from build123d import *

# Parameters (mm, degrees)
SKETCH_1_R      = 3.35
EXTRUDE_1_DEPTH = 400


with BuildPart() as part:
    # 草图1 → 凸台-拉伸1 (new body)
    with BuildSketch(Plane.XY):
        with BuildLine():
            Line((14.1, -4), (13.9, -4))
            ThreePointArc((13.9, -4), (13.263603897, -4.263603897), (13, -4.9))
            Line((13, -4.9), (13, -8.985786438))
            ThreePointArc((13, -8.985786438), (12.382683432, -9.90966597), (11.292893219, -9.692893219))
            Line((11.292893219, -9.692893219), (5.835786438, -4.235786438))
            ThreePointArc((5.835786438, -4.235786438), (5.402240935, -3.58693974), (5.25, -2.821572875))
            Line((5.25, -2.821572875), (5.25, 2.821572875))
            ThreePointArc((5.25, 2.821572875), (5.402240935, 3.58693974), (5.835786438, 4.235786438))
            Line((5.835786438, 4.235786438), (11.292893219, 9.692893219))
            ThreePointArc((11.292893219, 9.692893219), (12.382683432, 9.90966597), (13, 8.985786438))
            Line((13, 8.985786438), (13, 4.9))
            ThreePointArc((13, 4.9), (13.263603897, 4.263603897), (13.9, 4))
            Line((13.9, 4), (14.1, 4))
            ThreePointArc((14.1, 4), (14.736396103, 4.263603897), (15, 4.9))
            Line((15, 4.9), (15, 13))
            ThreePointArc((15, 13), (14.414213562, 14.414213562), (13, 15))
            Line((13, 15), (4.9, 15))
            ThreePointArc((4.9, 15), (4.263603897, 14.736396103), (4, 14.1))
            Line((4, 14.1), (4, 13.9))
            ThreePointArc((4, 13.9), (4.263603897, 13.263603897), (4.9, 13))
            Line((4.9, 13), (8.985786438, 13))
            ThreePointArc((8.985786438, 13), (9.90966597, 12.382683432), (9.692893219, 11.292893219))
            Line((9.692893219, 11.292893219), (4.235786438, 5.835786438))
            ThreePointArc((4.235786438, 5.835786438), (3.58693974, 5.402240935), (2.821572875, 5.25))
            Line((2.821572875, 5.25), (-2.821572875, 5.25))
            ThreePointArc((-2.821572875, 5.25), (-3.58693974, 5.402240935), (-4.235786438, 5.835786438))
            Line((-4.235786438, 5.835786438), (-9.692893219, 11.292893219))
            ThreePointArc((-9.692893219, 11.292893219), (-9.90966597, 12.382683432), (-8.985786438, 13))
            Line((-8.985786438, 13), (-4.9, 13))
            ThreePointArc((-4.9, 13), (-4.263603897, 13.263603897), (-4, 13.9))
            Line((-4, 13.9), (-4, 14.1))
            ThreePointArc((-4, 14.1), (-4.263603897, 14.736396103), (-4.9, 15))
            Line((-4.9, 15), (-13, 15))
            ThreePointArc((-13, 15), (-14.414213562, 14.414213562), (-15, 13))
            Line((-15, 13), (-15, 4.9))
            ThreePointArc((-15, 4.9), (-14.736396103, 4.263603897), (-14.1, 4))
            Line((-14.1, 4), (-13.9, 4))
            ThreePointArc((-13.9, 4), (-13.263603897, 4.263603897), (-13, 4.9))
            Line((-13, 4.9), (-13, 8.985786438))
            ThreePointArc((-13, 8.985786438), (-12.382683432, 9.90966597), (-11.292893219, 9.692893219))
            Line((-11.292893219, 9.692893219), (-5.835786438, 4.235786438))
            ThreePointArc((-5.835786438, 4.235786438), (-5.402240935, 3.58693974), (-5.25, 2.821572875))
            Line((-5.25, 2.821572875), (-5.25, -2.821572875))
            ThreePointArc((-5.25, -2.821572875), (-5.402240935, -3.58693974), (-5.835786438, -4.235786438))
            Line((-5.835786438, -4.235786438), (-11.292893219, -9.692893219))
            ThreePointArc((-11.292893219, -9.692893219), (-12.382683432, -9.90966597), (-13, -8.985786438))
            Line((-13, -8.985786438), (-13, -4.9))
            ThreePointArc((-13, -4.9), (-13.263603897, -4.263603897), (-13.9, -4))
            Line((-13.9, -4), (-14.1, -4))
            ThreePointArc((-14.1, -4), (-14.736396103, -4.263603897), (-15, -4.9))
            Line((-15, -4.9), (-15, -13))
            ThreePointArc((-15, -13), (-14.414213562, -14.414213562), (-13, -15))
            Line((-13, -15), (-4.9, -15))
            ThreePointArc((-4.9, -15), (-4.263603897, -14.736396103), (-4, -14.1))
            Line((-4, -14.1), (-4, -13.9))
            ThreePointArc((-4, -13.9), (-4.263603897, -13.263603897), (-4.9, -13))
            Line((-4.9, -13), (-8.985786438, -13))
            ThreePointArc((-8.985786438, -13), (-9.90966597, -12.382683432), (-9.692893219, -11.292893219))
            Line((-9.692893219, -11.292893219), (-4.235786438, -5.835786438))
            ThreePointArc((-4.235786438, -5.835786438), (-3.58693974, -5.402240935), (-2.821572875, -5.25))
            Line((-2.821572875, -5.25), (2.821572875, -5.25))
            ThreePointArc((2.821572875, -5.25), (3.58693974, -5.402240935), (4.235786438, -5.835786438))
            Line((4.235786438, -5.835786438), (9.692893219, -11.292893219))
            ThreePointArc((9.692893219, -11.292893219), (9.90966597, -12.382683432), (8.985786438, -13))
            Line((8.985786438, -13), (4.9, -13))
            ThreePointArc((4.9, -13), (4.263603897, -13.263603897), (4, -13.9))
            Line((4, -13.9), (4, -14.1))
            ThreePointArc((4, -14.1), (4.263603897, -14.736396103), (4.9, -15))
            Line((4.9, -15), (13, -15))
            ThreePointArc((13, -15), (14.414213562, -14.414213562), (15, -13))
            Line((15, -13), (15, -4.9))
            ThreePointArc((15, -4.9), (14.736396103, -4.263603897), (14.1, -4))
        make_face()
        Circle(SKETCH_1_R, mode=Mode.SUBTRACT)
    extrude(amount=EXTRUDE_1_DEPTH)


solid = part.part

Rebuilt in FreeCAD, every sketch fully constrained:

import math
import FreeCAD as App
import Part
import Sketcher

V = App.Vector
Q = App.Units.Quantity

doc = App.newDocument("Part")
body = doc.addObject("PartDesign::Body", "Body")

sketch1 = doc.addObject("Sketcher::SketchObject", "Sketch")
body.addObject(sketch1)
sketch1.AttachmentSupport = (doc.XY_Plane, [""])
sketch1.MapMode = "FlatFace"
sketch1.addGeometry([
    Part.LineSegment(V(14.1, -4, 0), V(13.9, -4, 0)),
    Part.ArcOfCircle(Part.Circle(V(13.9, -4.9, 0), V(0, 0, 1), 0.9), math.radians(90), math.radians(180)),
    Part.LineSegment(V(13, -4.9, 0), V(13, -8.99, 0)),
    Part.ArcOfCircle(Part.Circle(V(12, -8.99, 0), V(0, 0, 1), 1), math.radians(-135), math.radians(0)),
    Part.LineSegment(V(11.29, -9.69, 0), V(5.84, -4.24, 0)),
    Part.ArcOfCircle(Part.Circle(V(7.25, -2.82, 0), V(0, 0, 1), 2), math.radians(180), math.radians(225)),
    Part.LineSegment(V(5.25, -2.82, 0), V(5.25, 2.82, 0)),
    Part.ArcOfCircle(Part.Circle(V(7.25, 2.82, 0), V(0, 0, 1), 2), math.radians(135), math.radians(180)),
    Part.LineSegment(V(5.84, 4.24, 0), V(11.29, 9.69, 0)),
    Part.ArcOfCircle(Part.Circle(V(12, 8.99, 0), V(0, 0, 1), 1), math.radians(0), math.radians(135)),
    Part.LineSegment(V(13, 8.99, 0), V(13, 4.9, 0)),
    Part.ArcOfCircle(Part.Circle(V(13.9, 4.9, 0), V(0, 0, 1), 0.9), math.radians(180), math.radians(270)),
    Part.LineSegment(V(13.9, 4, 0), V(14.1, 4, 0)),
    Part.ArcOfCircle(Part.Circle(V(14.1, 4.9, 0), V(0, 0, 1), 0.9), math.radians(-90), math.radians(0)),
    Part.LineSegment(V(15, 4.9, 0), V(15, 13, 0)),
    Part.ArcOfCircle(Part.Circle(V(13, 13, 0), V(0, 0, 1), 2), math.radians(0), math.radians(90)),
    Part.LineSegment(V(13, 15, 0), V(4.9, 15, 0)),
    Part.ArcOfCircle(Part.Circle(V(4.9, 14.1, 0), V(0, 0, 1), 0.9), math.radians(90), math.radians(180)),
    Part.LineSegment(V(4, 14.1, 0), V(4, 13.9, 0)),
    Part.ArcOfCircle(Part.Circle(V(4.9, 13.9, 0), V(0, 0, 1), 0.9), math.radians(180), math.radians(270)),
    Part.LineSegment(V(4.9, 13, 0), V(8.99, 13, 0)),
    Part.ArcOfCircle(Part.Circle(V(8.99, 12, 0), V(0, 0, 1), 1), math.radians(-45), math.radians(90)),
    Part.LineSegment(V(9.69, 11.29, 0), V(4.24, 5.84, 0)),
    Part.ArcOfCircle(Part.Circle(V(2.82, 7.25, 0), V(0, 0, 1), 2), math.radians(-90), math.radians(-45)),
    Part.LineSegment(V(2.82, 5.25, 0), V(-2.82, 5.25, 0)),
    Part.ArcOfCircle(Part.Circle(V(-2.82, 7.25, 0), V(0, 0, 1), 2), math.radians(-135), math.radians(-90)),
    Part.LineSegment(V(-4.24, 5.84, 0), V(-9.69, 11.29, 0)),
    Part.ArcOfCircle(Part.Circle(V(-8.99, 12, 0), V(0, 0, 1), 1), math.radians(90), math.radians(225)),
    Part.LineSegment(V(-8.99, 13, 0), V(-4.9, 13, 0)),
    Part.ArcOfCircle(Part.Circle(V(-4.9, 13.9, 0), V(0, 0, 1), 0.9), math.radians(-90), math.radians(0)),
    Part.LineSegment(V(-4, 13.9, 0), V(-4, 14.1, 0)),
    Part.ArcOfCircle(Part.Circle(V(-4.9, 14.1, 0), V(0, 0, 1), 0.9), math.radians(0), math.radians(90)),
    Part.LineSegment(V(-4.9, 15, 0), V(-13, 15, 0)),
    Part.ArcOfCircle(Part.Circle(V(-13, 13, 0), V(0, 0, 1), 2), math.radians(90), math.radians(180)),
    Part.LineSegment(V(-15, 13, 0), V(-15, 4.9, 0)),
    Part.ArcOfCircle(Part.Circle(V(-14.1, 4.9, 0), V(0, 0, 1), 0.9), math.radians(180), math.radians(270)),
    Part.LineSegment(V(-14.1, 4, 0), V(-13.9, 4, 0)),
    Part.ArcOfCircle(Part.Circle(V(-13.9, 4.9, 0), V(0, 0, 1), 0.9), math.radians(-90), math.radians(0)),
    Part.LineSegment(V(-13, 4.9, 0), V(-13, 8.99, 0)),
    Part.ArcOfCircle(Part.Circle(V(-12, 8.99, 0), V(0, 0, 1), 1), math.radians(45), math.radians(180)),
    Part.LineSegment(V(-11.29, 9.69, 0), V(-5.84, 4.24, 0)),
    Part.ArcOfCircle(Part.Circle(V(-7.25, 2.82, 0), V(0, 0, 1), 2), math.radians(0), math.radians(45)),
    Part.LineSegment(V(-5.25, 2.82, 0), V(-5.25, -2.82, 0)),
    Part.ArcOfCircle(Part.Circle(V(-7.25, -2.82, 0), V(0, 0, 1), 2), math.radians(-45), math.radians(0)),
    Part.LineSegment(V(-5.84, -4.24, 0), V(-11.29, -9.69, 0)),
    Part.ArcOfCircle(Part.Circle(V(-12, -8.99, 0), V(0, 0, 1), 1), math.radians(-180), math.radians(-45)),
    Part.LineSegment(V(-13, -8.99, 0), V(-13, -4.9, 0)),
    Part.ArcOfCircle(Part.Circle(V(-13.9, -4.9, 0), V(0, 0, 1), 0.9), math.radians(0), math.radians(90)),
    Part.LineSegment(V(-13.9, -4, 0), V(-14.1, -4, 0)),
    Part.ArcOfCircle(Part.Circle(V(-14.1, -4.9, 0), V(0, 0, 1), 0.9), math.radians(90), math.radians(180)),
    Part.LineSegment(V(-15, -4.9, 0), V(-15, -13, 0)),
    Part.ArcOfCircle(Part.Circle(V(-13, -13, 0), V(0, 0, 1), 2), math.radians(-180), math.radians(-90)),
    Part.LineSegment(V(-13, -15, 0), V(-4.9, -15, 0)),
    Part.ArcOfCircle(Part.Circle(V(-4.9, -14.1, 0), V(0, 0, 1), 0.9), math.radians(-90), math.radians(0)),
    Part.LineSegment(V(-4, -14.1, 0), V(-4, -13.9, 0)),
    Part.ArcOfCircle(Part.Circle(V(-4.9, -13.9, 0), V(0, 0, 1), 0.9), math.radians(0), math.radians(90)),
    Part.LineSegment(V(-4.9, -13, 0), V(-8.99, -13, 0)),
    Part.ArcOfCircle(Part.Circle(V(-8.99, -12, 0), V(0, 0, 1), 1), math.radians(135), math.radians(270)),
    Part.LineSegment(V(-9.69, -11.29, 0), V(-4.24, -5.84, 0)),
    Part.ArcOfCircle(Part.Circle(V(-2.82, -7.25, 0), V(0, 0, 1), 2), math.radians(90), math.radians(135)),
    Part.LineSegment(V(-2.82, -5.25, 0), V(2.82, -5.25, 0)),
    Part.ArcOfCircle(Part.Circle(V(2.82, -7.25, 0), V(0, 0, 1), 2), math.radians(45), math.radians(90)),
    Part.LineSegment(V(4.24, -5.84, 0), V(9.69, -11.29, 0)),
    Part.ArcOfCircle(Part.Circle(V(8.99, -12, 0), V(0, 0, 1), 1), math.radians(-90), math.radians(45)),
    Part.LineSegment(V(8.99, -13, 0), V(4.9, -13, 0)),
    Part.ArcOfCircle(Part.Circle(V(4.9, -13.9, 0), V(0, 0, 1), 0.9), math.radians(90), math.radians(180)),
    Part.LineSegment(V(4, -13.9, 0), V(4, -14.1, 0)),
    Part.ArcOfCircle(Part.Circle(V(4.9, -14.1, 0), V(0, 0, 1), 0.9), math.radians(180), math.radians(270)),
    Part.LineSegment(V(4.9, -15, 0), V(13, -15, 0)),
    Part.ArcOfCircle(Part.Circle(V(13, -13, 0), V(0, 0, 1), 2), math.radians(-90), math.radians(0)),
    Part.LineSegment(V(15, -13, 0), V(15, -4.9, 0)),
    Part.ArcOfCircle(Part.Circle(V(14.1, -4.9, 0), V(0, 0, 1), 0.9), math.radians(0), math.radians(90)),
    Part.Circle(V(0, 0, 0), V(0, 0, 1), 3.35),
], False)
sketch1.addConstraint([
    Sketcher.Constraint("Tangent", 0, 2, 1, 1),
    Sketcher.Constraint("Tangent", 1, 2, 2, 1),
    Sketcher.Constraint("Tangent", 2, 2, 3, 2),
    Sketcher.Constraint("Tangent", 3, 1, 4, 1),
    Sketcher.Constraint("Tangent", 4, 2, 5, 2),
    Sketcher.Constraint("Tangent", 5, 1, 6, 1),
    Sketcher.Constraint("Tangent", 6, 2, 7, 2),
    Sketcher.Constraint("Tangent", 7, 1, 8, 1),
    Sketcher.Constraint("Tangent", 8, 2, 9, 2),
    Sketcher.Constraint("Tangent", 9, 1, 10, 1),
    Sketcher.Constraint("Tangent", 10, 2, 11, 1),
    Sketcher.Constraint("Tangent", 11, 2, 12, 1),
    Sketcher.Constraint("Tangent", 12, 2, 13, 1),
    Sketcher.Constraint("Tangent", 13, 2, 14, 1),
    Sketcher.Constraint("Tangent", 14, 2, 15, 1),
    Sketcher.Constraint("Tangent", 15, 2, 16, 1),
    Sketcher.Constraint("Tangent", 16, 2, 17, 1),
    Sketcher.Constraint("Tangent", 17, 2, 18, 1),
    Sketcher.Constraint("Tangent", 18, 2, 19, 1),
    Sketcher.Constraint("Tangent", 19, 2, 20, 1),
    Sketcher.Constraint("Tangent", 20, 2, 21, 2),
    Sketcher.Constraint("Tangent", 21, 1, 22, 1),
    Sketcher.Constraint("Tangent", 22, 2, 23, 2),
    Sketcher.Constraint("Tangent", 23, 1, 24, 1),
    Sketcher.Constraint("Tangent", 24, 2, 25, 2),
    Sketcher.Constraint("Tangent", 25, 1, 26, 1),
    Sketcher.Constraint("Tangent", 26, 2, 27, 2),
    Sketcher.Constraint("Tangent", 27, 1, 28, 1),
    Sketcher.Constraint("Tangent", 28, 2, 29, 1),
    Sketcher.Constraint("Tangent", 29, 2, 30, 1),
    Sketcher.Constraint("Tangent", 30, 2, 31, 1),
    Sketcher.Constraint("Tangent", 31, 2, 32, 1),
    Sketcher.Constraint("Tangent", 32, 2, 33, 1),
    Sketcher.Constraint("Tangent", 33, 2, 34, 1),
    Sketcher.Constraint("Tangent", 34, 2, 35, 1),
    Sketcher.Constraint("Tangent", 35, 2, 36, 1),
    Sketcher.Constraint("Tangent", 36, 2, 37, 1),
    Sketcher.Constraint("Tangent", 37, 2, 38, 1),
    Sketcher.Constraint("Tangent", 38, 2, 39, 2),
    Sketcher.Constraint("Tangent", 39, 1, 40, 1),
    Sketcher.Constraint("Tangent", 40, 2, 41, 2),
    Sketcher.Constraint("Tangent", 41, 1, 42, 1),
    Sketcher.Constraint("Tangent", 42, 2, 43, 2),
    Sketcher.Constraint("Tangent", 43, 1, 44, 1),
    Sketcher.Constraint("Tangent", 44, 2, 45, 2),
    Sketcher.Constraint("Tangent", 45, 1, 46, 1),
    Sketcher.Constraint("Tangent", 46, 2, 47, 1),
    Sketcher.Constraint("Tangent", 47, 2, 48, 1),
    Sketcher.Constraint("Tangent", 48, 2, 49, 1),
    Sketcher.Constraint("Tangent", 49, 2, 50, 1),
    Sketcher.Constraint("Tangent", 50, 2, 51, 1),
    Sketcher.Constraint("Tangent", 51, 2, 52, 1),
    Sketcher.Constraint("Tangent", 52, 2, 53, 1),
    Sketcher.Constraint("Tangent", 53, 2, 54, 1),
    Sketcher.Constraint("Tangent", 54, 2, 55, 1),
    Sketcher.Constraint("Tangent", 55, 2, 56, 1),
    Sketcher.Constraint("Tangent", 56, 2, 57, 2),
    Sketcher.Constraint("Tangent", 57, 1, 58, 1),
    Sketcher.Constraint("Tangent", 58, 2, 59, 2),
    Sketcher.Constraint("Tangent", 59, 1, 60, 1),
    Sketcher.Constraint("Tangent", 60, 2, 61, 2),
    Sketcher.Constraint("Tangent", 61, 1, 62, 1),
    Sketcher.Constraint("Tangent", 62, 2, 63, 2),
    Sketcher.Constraint("Tangent", 63, 1, 64, 1),
    Sketcher.Constraint("Tangent", 64, 2, 65, 1),
    Sketcher.Constraint("Tangent", 65, 2, 66, 1),
    Sketcher.Constraint("Tangent", 66, 2, 67, 1),
    Sketcher.Constraint("Tangent", 67, 2, 68, 1),
    Sketcher.Constraint("Tangent", 68, 2, 69, 1),
    Sketcher.Constraint("Tangent", 69, 2, 70, 1),
    Sketcher.Constraint("Tangent", 70, 2, 71, 1),
    Sketcher.Constraint("Tangent", 71, 2, 0, 1),
    Sketcher.Constraint("Horizontal", 0),
    Sketcher.Constraint("Vertical", 2),
    Sketcher.Constraint("Vertical", 6),
    Sketcher.Constraint("Vertical", 10),
    Sketcher.Constraint("Horizontal", 12),
    Sketcher.Constraint("Vertical", 14),
    Sketcher.Constraint("Horizontal", 16),
    Sketcher.Constraint("Vertical", 18),
    Sketcher.Constraint("Horizontal", 20),
    Sketcher.Constraint("Horizontal", 24),
    Sketcher.Constraint("Horizontal", 28),
    Sketcher.Constraint("Vertical", 30),
    Sketcher.Constraint("Horizontal", 32),
    Sketcher.Constraint("Vertical", 34),
    Sketcher.Constraint("Horizontal", 36),
    Sketcher.Constraint("Vertical", 38),
    Sketcher.Constraint("Vertical", 42),
    Sketcher.Constraint("Vertical", 46),
    Sketcher.Constraint("Horizontal", 48),
    Sketcher.Constraint("Vertical", 50),
    Sketcher.Constraint("Horizontal", 52),
    Sketcher.Constraint("Vertical", 54),
    Sketcher.Constraint("Horizontal", 56),
    Sketcher.Constraint("Horizontal", 60),
    Sketcher.Constraint("Horizontal", 64),
    Sketcher.Constraint("Vertical", 66),
    Sketcher.Constraint("Horizontal", 68),
    Sketcher.Constraint("Vertical", 70),
    Sketcher.Constraint("Coincident", 72, 3, -1, 1),
    Sketcher.Constraint("Equal", 5, 7),
    Sketcher.Constraint("Equal", 3, 9),
    Sketcher.Constraint("Equal", 1, 11),
    Sketcher.Constraint("Equal", 11, 13),
    Sketcher.Constraint("Equal", 7, 15),
    Sketcher.Constraint("Equal", 13, 17),
    Sketcher.Constraint("Equal", 17, 19),
    Sketcher.Constraint("Equal", 9, 21),
    Sketcher.Constraint("Equal", 15, 23),
    Sketcher.Constraint("Equal", 23, 25),
    Sketcher.Constraint("Equal", 21, 27),
    Sketcher.Constraint("Equal", 19, 29),
    Sketcher.Constraint("Equal", 29, 31),
    Sketcher.Constraint("Equal", 25, 33),
    Sketcher.Constraint("Equal", 31, 35),
    Sketcher.Constraint("Equal", 35, 37),
    Sketcher.Constraint("Equal", 27, 39),
    Sketcher.Constraint("Equal", 33, 41),
    Sketcher.Constraint("Equal", 41, 43),
    Sketcher.Constraint("Equal", 39, 45),
    Sketcher.Constraint("Equal", 37, 47),
    Sketcher.Constraint("Equal", 47, 49),
    Sketcher.Constraint("Equal", 43, 51),
    Sketcher.Constraint("Equal", 49, 53),
    Sketcher.Constraint("Equal", 53, 55),
    Sketcher.Constraint("Equal", 45, 57),
    Sketcher.Constraint("Equal", 51, 59),
    Sketcher.Constraint("Equal", 59, 61),
    Sketcher.Constraint("Equal", 57, 63),
    Sketcher.Constraint("Equal", 55, 65),
    Sketcher.Constraint("Equal", 65, 67),
    Sketcher.Constraint("Equal", 61, 69),
    Sketcher.Constraint("Equal", 67, 71),
    Sketcher.Constraint("Symmetric", 1, 3, 37, 3, -1, 1),
    Sketcher.Constraint("Symmetric", 5, 3, 41, 3, -1, 1),
    Sketcher.Constraint("Symmetric", 9, 3, 45, 3, -1, 1),
    Sketcher.Constraint("Symmetric", 13, 3, 49, 3, -1, 1),
    Sketcher.Constraint("Symmetric", 17, 3, 53, 3, -1, 1),
    Sketcher.Constraint("Symmetric", 21, 3, 57, 3, -1, 1),
    Sketcher.Constraint("Symmetric", 23, 3, 59, 3, -1, 1),
    Sketcher.Constraint("Symmetric", 27, 3, 63, 3, -1, 1),
    Sketcher.Constraint("Symmetric", 31, 3, 67, 3, -1, 1),
    Sketcher.Constraint("Symmetric", 21, 3, 27, 3, -2),
    Sketcher.Constraint("Symmetric", 17, 3, 31, 3, -2),
    Sketcher.Constraint("Symmetric", 13, 3, 35, 3, -2),
    Sketcher.Constraint("Symmetric", 9, 3, 39, 3, -2),
    Sketcher.Constraint("Symmetric", 4, 2, 43, 1, -2),
    Sketcher.Constraint("Perpendicular", 4, 8),
    Sketcher.Constraint("Parallel", 8, 22),
    Sketcher.Constraint("Perpendicular", 22, 26),
    Sketcher.Constraint("Perpendicular", 40, 44),
    Sketcher.Constraint("Perpendicular", 58, 62),
    Sketcher.Constraint("Horizontal", 14, 2, 19, 2),
    Sketcher.Constraint("Vertical", 15, 3, 69, 3),
    Sketcher.Constraint("Vertical", 69, 3, 1, 2),
    Sketcher.Constraint("Equal", 64, 2),
    Sketcher.Constraint("Equal", 60, 6),
    Sketcher.Constraint("Equal", 68, 14),
    Sketcher.Constraint("Equal", 8, 22),
    Sketcher.Constraint("Radius", 3, Q("1 mm")),
    Sketcher.Constraint("Radius", 5, Q("2 mm")),
    Sketcher.Constraint("Diameter", 72, Q("6.7 mm")),
    Sketcher.Constraint("Radius", 1, Q("0.9 mm")),
    Sketcher.Constraint("DistanceX", 16, 2, 16, 1, Q("8.1 mm")),
    Sketcher.Constraint("DistanceX", -1, 1, 3, 3, Q("12 mm")),
    Sketcher.Constraint("DistanceX", -1, 1, 5, 3, Q("7.25 mm")),
    Sketcher.Constraint("DistanceX", 20, 1, 20, 2, Q("4.085786 mm")),
])
pad1 = doc.addObject("PartDesign::Pad", "Pad")
body.addObject(pad1)
pad1.Profile = sketch1
pad1.Length = 400

doc.recompute()
